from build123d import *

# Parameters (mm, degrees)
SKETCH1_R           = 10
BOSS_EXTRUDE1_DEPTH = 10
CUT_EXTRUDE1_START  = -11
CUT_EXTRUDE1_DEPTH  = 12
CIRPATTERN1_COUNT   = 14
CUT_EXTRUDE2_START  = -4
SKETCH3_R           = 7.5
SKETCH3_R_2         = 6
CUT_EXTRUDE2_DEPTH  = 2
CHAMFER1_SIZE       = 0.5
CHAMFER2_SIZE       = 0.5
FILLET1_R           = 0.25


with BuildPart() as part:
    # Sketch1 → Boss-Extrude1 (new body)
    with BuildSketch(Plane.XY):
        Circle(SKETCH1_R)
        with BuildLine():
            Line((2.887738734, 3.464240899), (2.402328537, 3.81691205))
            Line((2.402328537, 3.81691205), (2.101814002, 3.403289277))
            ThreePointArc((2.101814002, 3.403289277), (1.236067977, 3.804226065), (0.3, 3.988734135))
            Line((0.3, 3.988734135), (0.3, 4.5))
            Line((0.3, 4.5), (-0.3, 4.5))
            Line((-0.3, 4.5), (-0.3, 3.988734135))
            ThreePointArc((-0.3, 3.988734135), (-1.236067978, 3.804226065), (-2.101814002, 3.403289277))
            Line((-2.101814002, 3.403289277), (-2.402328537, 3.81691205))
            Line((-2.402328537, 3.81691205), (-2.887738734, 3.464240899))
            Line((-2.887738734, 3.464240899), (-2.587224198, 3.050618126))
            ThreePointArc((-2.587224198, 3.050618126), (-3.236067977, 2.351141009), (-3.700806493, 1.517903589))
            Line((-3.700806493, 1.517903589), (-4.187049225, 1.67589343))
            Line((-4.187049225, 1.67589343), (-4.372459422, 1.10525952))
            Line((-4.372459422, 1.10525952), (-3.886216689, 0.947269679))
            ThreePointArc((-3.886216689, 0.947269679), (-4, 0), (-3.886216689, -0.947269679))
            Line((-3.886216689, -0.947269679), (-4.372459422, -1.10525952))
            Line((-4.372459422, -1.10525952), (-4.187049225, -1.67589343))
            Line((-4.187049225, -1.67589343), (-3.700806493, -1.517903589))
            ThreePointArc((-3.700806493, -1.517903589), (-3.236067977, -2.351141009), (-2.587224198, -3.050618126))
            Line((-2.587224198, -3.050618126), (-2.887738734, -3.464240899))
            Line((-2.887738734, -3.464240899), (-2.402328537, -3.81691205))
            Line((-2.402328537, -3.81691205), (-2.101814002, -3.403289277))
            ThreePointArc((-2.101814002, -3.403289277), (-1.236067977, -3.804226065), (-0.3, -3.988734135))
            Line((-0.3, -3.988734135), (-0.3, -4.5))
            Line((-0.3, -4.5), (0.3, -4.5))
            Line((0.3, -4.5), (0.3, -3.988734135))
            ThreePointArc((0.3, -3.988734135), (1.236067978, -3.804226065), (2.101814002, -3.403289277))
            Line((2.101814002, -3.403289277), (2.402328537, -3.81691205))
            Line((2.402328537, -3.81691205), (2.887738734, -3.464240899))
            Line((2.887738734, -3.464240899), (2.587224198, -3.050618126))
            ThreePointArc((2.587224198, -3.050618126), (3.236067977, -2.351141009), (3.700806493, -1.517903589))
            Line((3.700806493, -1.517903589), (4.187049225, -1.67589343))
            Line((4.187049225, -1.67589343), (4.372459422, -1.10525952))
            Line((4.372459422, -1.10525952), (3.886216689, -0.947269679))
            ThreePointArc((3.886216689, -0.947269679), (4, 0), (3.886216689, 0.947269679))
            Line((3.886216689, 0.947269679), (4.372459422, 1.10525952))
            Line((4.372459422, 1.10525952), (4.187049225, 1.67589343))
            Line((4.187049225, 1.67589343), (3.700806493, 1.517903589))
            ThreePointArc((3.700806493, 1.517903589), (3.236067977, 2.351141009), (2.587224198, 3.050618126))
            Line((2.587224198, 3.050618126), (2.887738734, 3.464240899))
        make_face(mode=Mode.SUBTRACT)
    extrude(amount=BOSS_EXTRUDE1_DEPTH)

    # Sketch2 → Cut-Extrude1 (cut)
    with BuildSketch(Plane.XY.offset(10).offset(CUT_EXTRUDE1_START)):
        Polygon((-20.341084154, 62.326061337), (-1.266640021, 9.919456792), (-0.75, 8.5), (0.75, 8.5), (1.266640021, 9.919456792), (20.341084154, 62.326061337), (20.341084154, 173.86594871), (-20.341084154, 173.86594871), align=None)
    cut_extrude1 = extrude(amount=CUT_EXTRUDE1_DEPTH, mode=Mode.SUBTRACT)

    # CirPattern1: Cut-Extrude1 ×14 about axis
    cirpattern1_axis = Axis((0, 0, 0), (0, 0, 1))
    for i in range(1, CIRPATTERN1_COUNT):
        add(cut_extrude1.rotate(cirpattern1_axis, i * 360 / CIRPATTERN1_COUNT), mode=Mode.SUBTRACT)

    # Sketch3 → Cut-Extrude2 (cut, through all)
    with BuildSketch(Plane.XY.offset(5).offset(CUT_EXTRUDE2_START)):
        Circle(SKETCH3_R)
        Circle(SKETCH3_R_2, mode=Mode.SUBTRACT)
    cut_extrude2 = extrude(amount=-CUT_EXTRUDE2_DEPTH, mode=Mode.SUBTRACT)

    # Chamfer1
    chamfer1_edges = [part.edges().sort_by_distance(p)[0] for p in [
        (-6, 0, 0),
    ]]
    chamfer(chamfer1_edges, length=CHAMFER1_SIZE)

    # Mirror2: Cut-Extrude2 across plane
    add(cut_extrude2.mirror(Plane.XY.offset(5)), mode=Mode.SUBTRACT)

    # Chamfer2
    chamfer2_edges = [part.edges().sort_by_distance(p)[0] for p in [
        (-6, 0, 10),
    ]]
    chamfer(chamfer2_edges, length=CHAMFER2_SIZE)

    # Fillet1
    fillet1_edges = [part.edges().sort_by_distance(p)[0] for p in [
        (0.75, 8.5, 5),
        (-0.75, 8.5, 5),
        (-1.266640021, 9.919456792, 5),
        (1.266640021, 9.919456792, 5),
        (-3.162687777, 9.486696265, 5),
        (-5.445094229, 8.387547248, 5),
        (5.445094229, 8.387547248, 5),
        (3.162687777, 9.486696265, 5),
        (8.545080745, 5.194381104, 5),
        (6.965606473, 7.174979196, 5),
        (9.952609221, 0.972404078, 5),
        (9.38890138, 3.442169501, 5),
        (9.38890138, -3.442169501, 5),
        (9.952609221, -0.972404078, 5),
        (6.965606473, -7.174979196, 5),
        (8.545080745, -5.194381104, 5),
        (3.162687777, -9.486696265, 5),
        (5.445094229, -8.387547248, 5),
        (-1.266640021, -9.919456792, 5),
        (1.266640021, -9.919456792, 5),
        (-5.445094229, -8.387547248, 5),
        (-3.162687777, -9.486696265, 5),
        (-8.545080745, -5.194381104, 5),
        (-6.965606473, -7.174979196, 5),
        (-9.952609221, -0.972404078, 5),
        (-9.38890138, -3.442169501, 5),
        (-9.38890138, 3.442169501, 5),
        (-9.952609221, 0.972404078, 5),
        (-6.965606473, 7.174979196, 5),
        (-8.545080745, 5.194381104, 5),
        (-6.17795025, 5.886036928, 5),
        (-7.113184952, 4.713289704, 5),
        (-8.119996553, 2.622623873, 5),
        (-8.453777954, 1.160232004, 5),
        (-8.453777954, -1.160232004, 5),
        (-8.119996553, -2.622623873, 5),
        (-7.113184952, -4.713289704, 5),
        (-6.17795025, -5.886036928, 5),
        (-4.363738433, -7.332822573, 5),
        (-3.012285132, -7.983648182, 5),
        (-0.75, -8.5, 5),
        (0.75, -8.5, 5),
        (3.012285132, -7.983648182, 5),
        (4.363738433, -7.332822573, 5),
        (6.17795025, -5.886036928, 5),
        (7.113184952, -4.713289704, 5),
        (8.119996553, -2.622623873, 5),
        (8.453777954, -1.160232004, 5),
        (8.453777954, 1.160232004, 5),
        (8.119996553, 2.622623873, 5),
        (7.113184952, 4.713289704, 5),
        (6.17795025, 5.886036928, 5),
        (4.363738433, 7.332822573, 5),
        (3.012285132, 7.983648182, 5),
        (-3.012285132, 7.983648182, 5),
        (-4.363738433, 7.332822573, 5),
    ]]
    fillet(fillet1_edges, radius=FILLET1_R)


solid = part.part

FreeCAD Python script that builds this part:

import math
import FreeCAD as App
import Part
import Sketcher
Q = App.Units.Quantity


def edges_at(feature, points):
    """Names of the edges that pass closest to the given points."""
    edges = feature.Shape.Edges
    near = lambda p: min(range(len(edges)), key=lambda i: edges[i].distToShape(Part.Vertex(*p))[0])
    return sorted({f"Edge{near(p) + 1}" for p in points})

doc = App.newDocument("Part")
body = doc.addObject("PartDesign::Body", "Body")

# Sketch on XY plane
sketch1 = body.newObject("Sketcher::SketchObject", "Sketch")
sketch1.AttachmentSupport = (doc.getObject("XY_Plane"), [""])
sketch1.MapMode = "FlatFace"
sketch1.addGeometry([
    Part.Circle(App.Vector(0, 0, 0), App.Vector(0, 0, 1), 10),  # 0
    Part.LineSegment(App.Vector(2.4, 3.8, 0), App.Vector(2.9, 3.5, 0)),  # 1
    Part.LineSegment(App.Vector(2.9, 3.5, 0), App.Vector(2.6, 3.1, 0)),  # 2
    Part.ArcOfCircle(Part.Circle(App.Vector(0, 0, 0), App.Vector(0, 0, 1), 4), math.radians(22), math.radians(50)),  # 3
    Part.LineSegment(App.Vector(3.7, 1.5, 0), App.Vector(4.2, 1.7, 0)),  # 4
    Part.LineSegment(App.Vector(4.2, 1.7, 0), App.Vector(4.4, 1.1, 0)),  # 5
    Part.LineSegment(App.Vector(4.4, 1.1, 0), App.Vector(3.9, 0.9, 0)),  # 6
    Part.ArcOfCircle(Part.Circle(App.Vector(0, 0, 0), App.Vector(0, 0, 1), 4), math.radians(-14), math.radians(14)),  # 7
    Part.LineSegment(App.Vector(3.9, -0.9, 0), App.Vector(4.4, -1.1, 0)),  # 8
    Part.LineSegment(App.Vector(4.4, -1.1, 0), App.Vector(4.2, -1.7, 0)),  # 9
    Part.LineSegment(App.Vector(4.2, -1.7, 0), App.Vector(3.7, -1.5, 0)),  # 10
    Part.ArcOfCircle(Part.Circle(App.Vector(0, 0, 0), App.Vector(0, 0, 1), 4), math.radians(-50), math.radians(-22)),  # 11
    Part.LineSegment(App.Vector(2.6, -3.1, 0), App.Vector(2.9, -3.5, 0)),  # 12
    Part.LineSegment(App.Vector(2.9, -3.5, 0), App.Vector(2.4, -3.8, 0)),  # 13
    Part.LineSegment(App.Vector(2.4, -3.8, 0), App.Vector(2.1, -3.4, 0)),  # 14
    Part.ArcOfCircle(Part.Circle(App.Vector(0, 0, 0), App.Vector(0, 0, 1), 4), math.radians(-86), math.radians(-58)),  # 15
    Part.LineSegment(App.Vector(0.3, -4, 0), App.Vector(0.3, -4.5, 0)),  # 16
    Part.LineSegment(App.Vector(0.3, -4.5, 0), App.Vector(-0.3, -4.5, 0)),  # 17
    Part.LineSegment(App.Vector(-0.3, -4.5, 0), App.Vector(-0.3, -4, 0)),  # 18
    Part.ArcOfCircle(Part.Circle(App.Vector(0, 0, 0), App.Vector(0, 0, 1), 4), math.radians(-122), math.radians(-94)),  # 19
    Part.LineSegment(App.Vector(-2.1, -3.4, 0), App.Vector(-2.4, -3.8, 0)),  # 20
    Part.LineSegment(App.Vector(-2.4, -3.8, 0), App.Vector(-2.9, -3.5, 0)),  # 21
    Part.LineSegment(App.Vector(-2.9, -3.5, 0), App.Vector(-2.6, -3.1, 0)),  # 22
    Part.ArcOfCircle(Part.Circle(App.Vector(0, 0, 0), App.Vector(0, 0, 1), 4), math.radians(-158), math.radians(-130)),  # 23
    Part.LineSegment(App.Vector(-3.7, -1.5, 0), App.Vector(-4.2, -1.7, 0)),  # 24
    Part.LineSegment(App.Vector(-4.2, -1.7, 0), App.Vector(-4.4, -1.1, 0)),  # 25
    Part.LineSegment(App.Vector(-4.4, -1.1, 0), App.Vector(-3.9, -0.9, 0)),  # 26
    Part.ArcOfCircle(Part.Circle(App.Vector(0, 0, 0), App.Vector(0, 0, 1), 4), math.radians(166), math.radians(194)),  # 27
    Part.LineSegment(App.Vector(-3.9, 0.9, 0), App.Vector(-4.4, 1.1, 0)),  # 28
    Part.LineSegment(App.Vector(-4.4, 1.1, 0), App.Vector(-4.2, 1.7, 0)),  # 29
    Part.LineSegment(App.Vector(-4.2, 1.7, 0), App.Vector(-3.7, 1.5, 0)),  # 30
    Part.ArcOfCircle(Part.Circle(App.Vector(0, 0, 0), App.Vector(0, 0, 1), 4), math.radians(130), math.radians(158)),  # 31
    Part.LineSegment(App.Vector(-2.6, 3.1, 0), App.Vector(-2.9, 3.5, 0)),  # 32
    Part.LineSegment(App.Vector(-2.9, 3.5, 0), App.Vector(-2.4, 3.8, 0)),  # 33
    Part.LineSegment(App.Vector(-2.4, 3.8, 0), App.Vector(-2.1, 3.4, 0)),  # 34
    Part.ArcOfCircle(Part.Circle(App.Vector(0, 0, 0), App.Vector(0, 0, 1), 4), math.radians(94), math.radians(122)),  # 35
    Part.LineSegment(App.Vector(-0.3, 4, 0), App.Vector(-0.3, 4.5, 0)),  # 36
    Part.LineSegment(App.Vector(-0.3, 4.5, 0), App.Vector(0.3, 4.5, 0)),  # 37
    Part.LineSegment(App.Vector(0.3, 4.5, 0), App.Vector(0.3, 4, 0)),  # 38
    Part.ArcOfCircle(Part.Circle(App.Vector(0, 0, 0), App.Vector(0, 0, 1), 4), math.radians(58), math.radians(86)),  # 39
    Part.LineSegment(App.Vector(2.1, 3.4, 0), App.Vector(2.4, 3.8, 0)),  # 40
], False)
sketch1.addConstraint([
    Sketcher.Constraint("Coincident", 1, 2, 2, 1),
    Sketcher.Constraint("Coincident", 2, 2, 3, 2),
    Sketcher.Constraint("Coincident", 3, 1, 4, 1),
    Sketcher.Constraint("Coincident", 4, 2, 5, 1),
    Sketcher.Constraint("Coincident", 5, 2, 6, 1),
    Sketcher.Constraint("Coincident", 6, 2, 7, 2),
    Sketcher.Constraint("Coincident", 7, 1, 8, 1),
    Sketcher.Constraint("Coincident", 8, 2, 9, 1),
    Sketcher.Constraint("Coincident", 9, 2, 10, 1),
    Sketcher.Constraint("Coincident", 10, 2, 11, 2),
    Sketcher.Constraint("Coincident", 11, 1, 12, 1),
    Sketcher.Constraint("Coincident", 12, 2, 13, 1),
    Sketcher.Constraint("Coincident", 13, 2, 14, 1),
    Sketcher.Constraint("Coincident", 14, 2, 15, 2),
    Sketcher.Constraint("Coincident", 15, 1, 16, 1),
    Sketcher.Constraint("Coincident", 16, 2, 17, 1),
    Sketcher.Constraint("Coincident", 17, 2, 18, 1),
    Sketcher.Constraint("Coincident", 18, 2, 19, 2),
    Sketcher.Constraint("Coincident", 19, 1, 20, 1),
    Sketcher.Constraint("Coincident", 20, 2, 21, 1),
    Sketcher.Constraint("Coincident", 21, 2, 22, 1),
    Sketcher.Constraint("Coincident", 22, 2, 23, 2),
    Sketcher.Constraint("Coincident", 23, 1, 24, 1),
    Sketcher.Constraint("Coincident", 24, 2, 25, 1),
    Sketcher.Constraint("Coincident", 25, 2, 26, 1),
    Sketcher.Constraint("Coincident", 26, 2, 27, 2),
    Sketcher.Constraint("Coincident", 27, 1, 28, 1),
    Sketcher.Constraint("Coincident", 28, 2, 29, 1),
    Sketcher.Constraint("Coincident", 29, 2, 30, 1),
    Sketcher.Constraint("Coincident", 30, 2, 31, 2),
    Sketcher.Constraint("Coincident", 31, 1, 32, 1),
    Sketcher.Constraint("Coincident", 32, 2, 33, 1),
    Sketcher.Constraint("Coincident", 33, 2, 34, 1),
    Sketcher.Constraint("Coincident", 34, 2, 35, 2),
    Sketcher.Constraint("Coincident", 35, 1, 36, 1),
    Sketcher.Constraint("Coincident", 36, 2, 37, 1),
    Sketcher.Constraint("Coincident", 37, 2, 38, 1),
    Sketcher.Constraint("Coincident", 38, 2, 39, 2),
    Sketcher.Constraint("Coincident", 39, 1, 40, 1),
    Sketcher.Constraint("Coincident", 40, 2, 1, 1),
    Sketcher.Constraint("Vertical", 16),
    Sketcher.Constraint("Horizontal", 17),
    Sketcher.Constraint("Vertical", 18),
    Sketcher.Constraint("Vertical", 36),
    Sketcher.Constraint("Horizontal", 37),
    Sketcher.Constraint("Vertical", 38),
    Sketcher.Constraint("Coincident", 0, 3, -1, 1),
    Sketcher.Constraint("Coincident", 3, 3, -1, 1),
    Sketcher.Constraint("Coincident", 7, 3, -1, 1),
    Sketcher.Constraint("Coincident", 11, 3, -1, 1),
    Sketcher.Constraint("Coincident", 15, 3, -1, 1),
    Sketcher.Constraint("Coincident", 19, 3, -1, 1),
    Sketcher.Constraint("Coincident", 23, 3, -1, 1),
    Sketcher.Constraint("Coincident", 27, 3, -1, 1),
    Sketcher.Constraint("Coincident", 31, 3, -1, 1),
    Sketcher.Constraint("Coincident", 35, 3, -1, 1),
    Sketcher.Constraint("Coincident", 39, 3, -1, 1),
    Sketcher.Constraint("Equal", 3, 7),
    Sketcher.Constraint("Equal", 7, 11),
    Sketcher.Constraint("Equal", 11, 15),
    Sketcher.Constraint("Equal", 15, 19),
    Sketcher.Constraint("Equal", 19, 23),
    Sketcher.Constraint("Equal", 23, 27),
    Sketcher.Constraint("Equal", 27, 31),
    Sketcher.Constraint("Equal", 31, 35),
    Sketcher.Constraint("Equal", 35, 39),
    Sketcher.Constraint("Symmetric", 1, 2, 21, 2, -1, 1),
    Sketcher.Constraint("Symmetric", 4, 2, 24, 2, -1, 1),
    Sketcher.Constraint("Symmetric", 5, 2, 25, 2, -1, 1),
    Sketcher.Constraint("Symmetric", 8, 2, 28, 2, -1, 1),
    Sketcher.Constraint("Symmetric", 9, 2, 29, 2, -1, 1),
    Sketcher.Constraint("Symmetric", 12, 2, 32, 2, -1, 1),
    Sketcher.Constraint("Symmetric", 13, 2, 33, 2, -1, 1),
    Sketcher.Constraint("Symmetric", 16, 2, 36, 2, -1, 1),
    Sketcher.Constraint("Symmetric", 20, 2, 40, 2, -1, 1),
    Sketcher.Constraint("Symmetric", 13, 2, 20, 2, -2),
    Sketcher.Constraint("Symmetric", 12, 2, 21, 2, -2),
    Sketcher.Constraint("Symmetric", 9, 2, 24, 2, -2),
    Sketcher.Constraint("Symmetric", 8, 2, 25, 2, -2),
    Sketcher.Constraint("Perpendicular", 1, 2),
    Sketcher.Constraint("Perpendicular", 4, 5),
    Sketcher.Constraint("Perpendicular", 5, 6),
    Sketcher.Constraint("Perpendicular", 8, 9),
    Sketcher.Constraint("Perpendicular", 9, 10),
    Sketcher.Constraint("Perpendicular", 12, 13),
    Sketcher.Constraint("Perpendicular", 13, 14),
    Sketcher.Constraint("Parallel", 2, 20),
    Sketcher.Constraint("Perpendicular", 21, 22),
    Sketcher.Constraint("Parallel", 6, 24),
    Sketcher.Constraint("Perpendicular", 25, 26),
    Sketcher.Constraint("Parallel", 10, 28),
    Sketcher.Constraint("Perpendicular", 29, 30),
    Sketcher.Constraint("Parallel", 14, 32),
    Sketcher.Constraint("Perpendicular", 33, 34),
    Sketcher.Constraint("Parallel", 22, 40),
    Sketcher.Constraint("Horizontal", 15, 1, 18, 2),
    Sketcher.Constraint("Horizontal", 35, 1, 38, 2),
    Sketcher.Constraint("Equal", 2, 4),
    Sketcher.Constraint("Equal", 1, 5),
    Sketcher.Constraint("Equal", 4, 6),
    Sketcher.Constraint("Equal", 12, 14),
    Sketcher.Constraint("Diameter", 0, Q("20 mm")),
    Sketcher.Constraint("Radius", 3, Q("4 mm")),
    Sketcher.Constraint("Angle", 1, Q("-36 deg")),
    Sketcher.Constraint("Angle", 4, Q("18 deg")),
    Sketcher.Constraint("DistanceX", 17, 2, 17, 1, Q("0.6 mm")),
    Sketcher.Constraint("Distance", 1, Q("0.6 mm")),
    Sketcher.Constraint("DistanceY", 16, 2, -1, 1, Q("4.5 mm")),
    Sketcher.Constraint("DistanceX", -1, 1, 1, 2, Q("2.887739 mm")),
])
pad1 = body.newObject("PartDesign::Pad", "Pad")
pad1.Profile = sketch1
pad1.Length = 10

# Sketch on XY plane
sketch2 = body.newObject("Sketcher::SketchObject", "Sketch001")
sketch2.AttachmentSupport = (doc.getObject("XY_Plane"), [""])
sketch2.MapMode = "FlatFace"
sketch2.AttachmentOffset = App.Placement(App.Vector(0, 0, -1), App.Rotation())
sketch2.addGeometry([
    Part.LineSegment(App.Vector(-20.3, 62.3, 0), App.Vector(-1.3, 9.9, 0)),  # 0
    Part.LineSegment(App.Vector(-1.3, 9.9, 0), App.Vector(-0.8, 8.5, 0)),  # 1
    Part.LineSegment(App.Vector(-0.8, 8.5, 0), App.Vector(0.8, 8.5, 0)),  # 2
    Part.LineSegment(App.Vector(0.8, 8.5, 0), App.Vector(1.3, 9.9, 0)),  # 3
    Part.LineSegment(App.Vector(1.3, 9.9, 0), App.Vector(20.3, 62.3, 0)),  # 4
    Part.LineSegment(App.Vector(20.3, 62.3, 0), App.Vector(20.3, 173.9, 0)),  # 5
    Part.LineSegment(App.Vector(20.3, 173.9, 0), App.Vector(-20.3, 173.9, 0)),  # 6
    Part.LineSegment(App.Vector(-20.3, 173.9, 0), App.Vector(-20.3, 62.3, 0)),  # 7
], False)
sketch2.addConstraint([
    Sketcher.Constraint("Coincident", 0, 2, 1, 1),
    Sketcher.Constraint("Coincident", 1, 2, 2, 1),
    Sketcher.Constraint("Coincident", 2, 2, 3, 1),
    Sketcher.Constraint("Coincident", 3, 2, 4, 1),
    Sketcher.Constraint("Coincident", 4, 2, 5, 1),
    Sketcher.Constraint("Coincident", 5, 2, 6, 1),
    Sketcher.Constraint("Coincident", 6, 2, 7, 1),
    Sketcher.Constraint("Coincident", 7, 2, 0, 1),
    Sketcher.Constraint("Horizontal", 2),
    Sketcher.Constraint("Vertical", 5),
    Sketcher.Constraint("Horizontal", 6),
    Sketcher.Constraint("Vertical", 7),
    Sketcher.Constraint("Symmetric", 0, 2, 3, 2, -2),
    Sketcher.Constraint("Symmetric", 4, 2, 7, 2, -2),
    Sketcher.Constraint("Parallel", 0, 1),
    Sketcher.Constraint("Parallel", 3, 4),
    Sketcher.Constraint("Angle", 0, Q("-70 deg")),
    Sketcher.Constraint("DistanceX", 2, 1, 2, 2, Q("1.5 mm")),
    Sketcher.Constraint("DistanceY", -1, 1, 1, 2, Q("8.5 mm")),
    Sketcher.Constraint("DistanceX", 6, 2, 6, 1, Q("40.682168 mm")),
    Sketcher.Constraint("DistanceY", 5, 1, 5, 2, Q("111.539887 mm")),
    Sketcher.Constraint("DistanceX", 0, 2, -1, 1, Q("1.26664 mm")),
])
pocket1 = body.newObject("PartDesign::Pocket", "Pocket")
pocket1.Profile = sketch2
pocket1.Length = 12
pocket1.Reversed = True
doc.recompute()

polarpattern = body.newObject("PartDesign::PolarPattern", "PolarPattern")
polarpattern.Originals = [pocket1]
polarpattern.Axis = (doc.getObject("Z_Axis"), [""])
polarpattern.Angle = 360
polarpattern.Occurrences = 14
body.Tip = polarpattern

# Sketch on XY plane
sketch3 = body.newObject("Sketcher::SketchObject", "Sketch002")
sketch3.AttachmentSupport = (doc.getObject("XY_Plane"), [""])
sketch3.MapMode = "FlatFace"
sketch3.AttachmentOffset = App.Placement(App.Vector(0, 0, 1), App.Rotation())
sketch3.addGeometry([
    Part.Circle(App.Vector(0, 0, 0), App.Vector(0, 0, 1), 8),
    Part.Circle(App.Vector(0, 0, 0), App.Vector(0, 0, 1), 6),
], False)
sketch3.addConstraint([
    Sketcher.Constraint("Coincident", 0, 3, -1, 1),
    Sketcher.Constraint("Coincident", 1, 3, -1, 1),
    Sketcher.Constraint("Diameter", 0, Q("15 mm")),
    Sketcher.Constraint("Diameter", 1, Q("12 mm")),
])
pocket2 = body.newObject("PartDesign::Pocket", "Pocket001")
pocket2.Profile = sketch3
pocket2.Type = "ThroughAll"
doc.recompute()

chamfer = body.newObject("PartDesign::Chamfer", "Chamfer")
chamfer.Base = (pocket2, edges_at(pocket2, [(-6, 0, 0)]))
chamfer.Size = 0.5
doc.recompute()

datumplane = body.newObject("PartDesign::Plane", "DatumPlane")
datumplane.AttachmentSupport = (doc.getObject("XY_Plane"), [""])
datumplane.MapMode = "FlatFace"
datumplane.AttachmentOffset = App.Placement(App.Vector(0, 0, 5), App.Rotation())
mirrored = body.newObject("PartDesign::Mirrored", "Mirrored")
mirrored.Originals = [pocket2]
mirrored.MirrorPlane = (datumplane, [""])
body.Tip = mirrored
doc.recompute()

chamfer2 = body.newObject("PartDesign::Chamfer", "Chamfer001")
chamfer2.Base = (mirrored, edges_at(mirrored, [(-6, 0, 10)]))
chamfer2.Size = 0.5
doc.recompute()

fillet = body.newObject("PartDesign::Fillet", "Fillet")
fillet.Base = (chamfer2, edges_at(chamfer2, [
    (0.75, 8.5, 5),
    (-0.75, 8.5, 5),
    (-1.267, 9.919, 5),
    (1.267, 9.919, 5),
    (-3.163, 9.487, 5),
    (-5.445, 8.388, 5),
    (5.445, 8.388, 5),
    (3.163, 9.487, 5),
    (8.545, 5.194, 5),
    (6.966, 7.175, 5),
    (9.953, 0.972, 5),
    (9.389, 3.442, 5),
    (9.389, -3.442, 5),
    (9.953, -0.972, 5),
    (6.966, -7.175, 5),
    (8.545, -5.194, 5),
    (3.163, -9.487, 5),
    (5.445, -8.388, 5),
    (-1.267, -9.919, 5),
    (1.267, -9.919, 5),
    (-5.445, -8.388, 5),
    (-3.163, -9.487, 5),
    (-8.545, -5.194, 5),
    (-6.966, -7.175, 5),
    (-9.953, -0.972, 5),
    (-9.389, -3.442, 5),
    (-9.389, 3.442, 5),
    (-9.953, 0.972, 5),
    (-6.966, 7.175, 5),
    (-8.545, 5.194, 5),
    (-6.178, 5.886, 5),
    (-7.113, 4.713, 5),
    (-8.12, 2.623, 5),
    (-8.454, 1.16, 5),
    (-8.454, -1.16, 5),
    (-8.12, -2.623, 5),
    (-7.113, -4.713, 5),
    (-6.178, -5.886, 5),
    (-4.364, -7.333, 5),
    (-3.012, -7.984, 5),
    (-0.75, -8.5, 5),
    (0.75, -8.5, 5),
    (3.012, -7.984, 5),
    (4.364, -7.333, 5),
    (6.178, -5.886, 5),
    (7.113, -4.713, 5),
    (8.12, -2.623, 5),
    (8.454, -1.16, 5),
    (8.454, 1.16, 5),
    (8.12, 2.623, 5),
    (7.113, 4.713, 5),
    (6.178, 5.886, 5),
    (4.364, 7.333, 5),
    (3.012, 7.984, 5),
    (-3.012, 7.984, 5),
    (-4.364, 7.333, 5),
]))
fillet.Radius = 0.25

doc.recompute()
